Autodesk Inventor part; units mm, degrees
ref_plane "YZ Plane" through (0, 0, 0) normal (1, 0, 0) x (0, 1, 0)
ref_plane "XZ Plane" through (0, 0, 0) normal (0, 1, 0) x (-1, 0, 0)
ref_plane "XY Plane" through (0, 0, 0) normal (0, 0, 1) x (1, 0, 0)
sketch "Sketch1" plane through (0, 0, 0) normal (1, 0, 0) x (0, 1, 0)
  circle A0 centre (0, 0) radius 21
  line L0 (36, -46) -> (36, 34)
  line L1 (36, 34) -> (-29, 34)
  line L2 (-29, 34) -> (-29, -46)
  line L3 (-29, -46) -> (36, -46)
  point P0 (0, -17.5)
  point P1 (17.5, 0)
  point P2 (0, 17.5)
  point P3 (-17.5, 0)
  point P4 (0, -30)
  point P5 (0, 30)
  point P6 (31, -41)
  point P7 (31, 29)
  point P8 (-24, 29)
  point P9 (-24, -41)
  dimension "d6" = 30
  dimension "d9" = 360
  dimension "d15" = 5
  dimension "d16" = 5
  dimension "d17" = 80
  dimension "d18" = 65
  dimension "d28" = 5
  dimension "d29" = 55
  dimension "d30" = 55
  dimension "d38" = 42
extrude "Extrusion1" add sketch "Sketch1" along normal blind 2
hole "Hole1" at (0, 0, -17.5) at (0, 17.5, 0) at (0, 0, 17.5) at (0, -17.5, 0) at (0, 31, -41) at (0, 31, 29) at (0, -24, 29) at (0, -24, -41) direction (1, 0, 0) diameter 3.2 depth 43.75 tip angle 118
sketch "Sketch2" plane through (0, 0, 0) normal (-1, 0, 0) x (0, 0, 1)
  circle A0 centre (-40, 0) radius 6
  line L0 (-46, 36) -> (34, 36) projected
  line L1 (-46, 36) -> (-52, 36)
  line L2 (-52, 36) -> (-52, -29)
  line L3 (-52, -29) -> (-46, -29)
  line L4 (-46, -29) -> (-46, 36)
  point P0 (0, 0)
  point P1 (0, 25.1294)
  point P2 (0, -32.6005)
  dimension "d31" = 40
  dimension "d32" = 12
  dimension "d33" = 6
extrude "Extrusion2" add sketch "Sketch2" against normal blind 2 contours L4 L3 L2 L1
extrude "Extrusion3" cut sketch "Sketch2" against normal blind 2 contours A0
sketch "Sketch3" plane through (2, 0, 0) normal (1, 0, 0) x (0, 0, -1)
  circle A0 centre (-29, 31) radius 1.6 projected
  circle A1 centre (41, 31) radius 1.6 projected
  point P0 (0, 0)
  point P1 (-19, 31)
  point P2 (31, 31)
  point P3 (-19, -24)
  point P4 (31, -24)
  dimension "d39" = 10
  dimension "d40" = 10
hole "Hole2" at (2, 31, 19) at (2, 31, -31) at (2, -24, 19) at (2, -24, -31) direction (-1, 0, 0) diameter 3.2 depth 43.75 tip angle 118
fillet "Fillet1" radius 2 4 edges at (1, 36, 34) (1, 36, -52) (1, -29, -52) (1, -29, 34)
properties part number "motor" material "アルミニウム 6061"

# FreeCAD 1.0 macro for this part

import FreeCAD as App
import Part
import Sketcher
from FreeCAD import Vector


def edges_at(feature, points):
    """Names of the edges that pass closest to the given points."""
    edges = feature.Shape.Edges
    near = lambda p: min(range(len(edges)), key=lambda i: edges[i].distToShape(Part.Vertex(*p))[0])
    return sorted({f"Edge{near(p) + 1}" for p in points})


def add_polygon(sketch, points):
    """Adds a closed chain of lines whose ends are joined by coincident constraints."""
    first, n = sketch.GeometryCount, len(points)
    for a, b in zip(points, points[1:] + points[:1]):
        sketch.addGeometry(Part.LineSegment(App.Vector(*a, 0), App.Vector(*b, 0)), False)
    for i in range(n):
        sketch.addConstraint(Sketcher.Constraint("Coincident", first + i, 2, first + (i + 1) % n, 1))

doc = App.newDocument("Part")
body = doc.addObject("PartDesign::Body", "Body")

sketch1 = body.newObject("Sketcher::SketchObject", "Sketch")
sketch1.AttachmentSupport = (doc.getObject("YZ_Plane"), [""])
sketch1.MapMode = "FlatFace"
add_polygon(sketch1, [(-29, -46), (36, -46), (36, 34), (-29, 34)])
sketch1.addGeometry(Part.Circle(Vector(0, 0, 0), Vector(0, 0, 1), 21), False)
sketch1.addConstraint([
    Sketcher.Constraint("Horizontal", 0),
    Sketcher.Constraint("Vertical", 1),
    Sketcher.Constraint("Horizontal", 2),
    Sketcher.Constraint("Vertical", 3),
    Sketcher.Constraint("Coincident", 4, 3, -1, 1),
    Sketcher.Constraint("Diameter", 4, 42.0),
    Sketcher.Constraint("DistanceX", 0, 1, 0, 2, 65.0),
    Sketcher.Constraint("DistanceY", 1, 1, 1, 2, 80.0),
    Sketcher.Constraint("DistanceX", -1, 1, 0, 2, 36.0),
    Sketcher.Constraint("DistanceY", 0, 2, -1, 1, 46.0),
])
pad1 = body.newObject("PartDesign::Pad", "Pad")
pad1.Profile = sketch1
pad1.Length = 2

sketch2 = body.newObject("Sketcher::SketchObject", "Sketch001")
sketch2.AttachmentSupport = (doc.getObject("YZ_Plane"), [""])
sketch2.MapMode = "FlatFace"
sketch2.addGeometry([
    Part.Circle(Vector(0, -17.5, 0), Vector(0, 0, 1), 1.6),
    Part.Circle(Vector(17.5, 0, 0), Vector(0, 0, 1), 1.6),
    Part.Circle(Vector(0, 17.5, 0), Vector(0, 0, 1), 1.6),
    Part.Circle(Vector(-17.5, 0, 0), Vector(0, 0, 1), 1.6),
    Part.Circle(Vector(31, -41, 0), Vector(0, 0, 1), 1.6),
    Part.Circle(Vector(31, 29, 0), Vector(0, 0, 1), 1.6),
    Part.Circle(Vector(-24, 29, 0), Vector(0, 0, 1), 1.6),
    Part.Circle(Vector(-24, -41, 0), Vector(0, 0, 1), 1.6),
], False)
sketch2.addConstraint([
    Sketcher.Constraint("Equal", 0, 1),
    Sketcher.Constraint("Equal", 1, 2),
    Sketcher.Constraint("Equal", 2, 3),
    Sketcher.Constraint("Equal", 3, 4),
    Sketcher.Constraint("Equal", 4, 5),
    Sketcher.Constraint("Equal", 5, 6),
    Sketcher.Constraint("Equal", 6, 7),
    Sketcher.Constraint("Symmetric", 0, 3, 2, 3, -1, 1),
    Sketcher.Constraint("Symmetric", 1, 3, 3, 3, -1, 1),
    Sketcher.Constraint("PointOnObject", 0, 3, -2),
    Sketcher.Constraint("PointOnObject", 1, 3, -1),
    Sketcher.Constraint("Horizontal", 5, 3, 6, 3),
    Sketcher.Constraint("Horizontal", 4, 3, 7, 3),
    Sketcher.Constraint("Vertical", 4, 3, 5, 3),
    Sketcher.Constraint("Vertical", 6, 3, 7, 3),
    Sketcher.Constraint("Diameter", 0, 3.2),
    Sketcher.Constraint("DistanceX", -1, 1, 4, 3, 31.0),
    Sketcher.Constraint("DistanceY", 4, 3, -1, 1, 41.0),
    Sketcher.Constraint("DistanceY", -1, 1, 5, 3, 29.0),
    Sketcher.Constraint("DistanceX", 6, 3, -1, 1, 24.0),
    Sketcher.Constraint("DistanceY", 0, 3, 2, 3, 35.0),
    Sketcher.Constraint("DistanceX", 3, 3, 1, 3, 35.0),
])
doc.recompute()
hole = body.newObject("PartDesign::Hole", "Hole")
hole.Profile = sketch2
hole.ThreadType = "None"
hole.Diameter = 3.2
hole.DepthType = "Dimension"
hole.Depth = 43.75
hole.DrillPoint = "Angled"
hole.DrillPointAngle = 118
hole.Reversed = True

sketch3 = body.newObject("Sketcher::SketchObject", "Sketch002")
sketch3.AttachmentSupport = (doc.getObject("YZ_Plane"), [""])
sketch3.MapMode = "FlatFace"
add_polygon(sketch3, [(-29, -46), (36, -46), (36, -52), (-29, -52)])
sketch3.addConstraint([
    Sketcher.Constraint("Horizontal", 0),
    Sketcher.Constraint("Vertical", 1),
    Sketcher.Constraint("Horizontal", 2),
    Sketcher.Constraint("Vertical", 3),
    Sketcher.Constraint("DistanceY", 1, 2, 1, 1, 6.0),
    Sketcher.Constraint("DistanceX", 0, 1, 0, 2, 65.0),
    Sketcher.Constraint("DistanceX", -1, 1, 0, 2, 36.0),
    Sketcher.Constraint("DistanceY", 0, 2, -1, 1, 46.0),
])
pad2 = body.newObject("PartDesign::Pad", "Pad001")
pad2.Profile = sketch3
pad2.Length = 2

sketch4 = body.newObject("Sketcher::SketchObject", "Sketch003")
sketch4.AttachmentSupport = (doc.getObject("YZ_Plane"), [""])
sketch4.MapMode = "FlatFace"
sketch4.addGeometry(Part.Circle(Vector(0, -40, 0), Vector(0, 0, 1), 6), False)
sketch4.addConstraint([
    Sketcher.Constraint("PointOnObject", 0, 3, -2),
    Sketcher.Constraint("Diameter", 0, 12.0),
    Sketcher.Constraint("DistanceY", 0, 3, -1, 1, 40.0),
])
pocket1 = body.newObject("PartDesign::Pocket", "Pocket")
pocket1.Profile = sketch4
pocket1.Length = 2
pocket1.Reversed = True

sketch5 = body.newObject("Sketcher::SketchObject", "Sketch004")
sketch5.AttachmentSupport = (doc.getObject("YZ_Plane"), [""])
sketch5.MapMode = "FlatFace"
sketch5.AttachmentOffset = App.Placement(Vector(0, 0, 2), App.Rotation())
sketch5.addGeometry([
    Part.Circle(Vector(31, 19, 0), Vector(0, 0, 1), 1.6),
    Part.Circle(Vector(31, -31, 0), Vector(0, 0, 1), 1.6),
    Part.Circle(Vector(-24, 19, 0), Vector(0, 0, 1), 1.6),
    Part.Circle(Vector(-24, -31, 0), Vector(0, 0, 1), 1.6),
], False)
sketch5.addConstraint([
    Sketcher.Constraint("Equal", 0, 1),
    Sketcher.Constraint("Equal", 1, 2),
    Sketcher.Constraint("Equal", 2, 3),
    Sketcher.Constraint("Horizontal", 0, 3, 2, 3),
    Sketcher.Constraint("Horizontal", 1, 3, 3, 3),
    Sketcher.Constraint("Vertical", 0, 3, 1, 3),
    Sketcher.Constraint("Vertical", 2, 3, 3, 3),
    Sketcher.Constraint("Diameter", 0, 3.2),
    Sketcher.Constraint("DistanceX", -1, 1, 0, 3, 31.0),
    Sketcher.Constraint("DistanceY", -1, 1, 0, 3, 19.0),
    Sketcher.Constraint("DistanceY", 1, 3, -1, 1, 31.0),
    Sketcher.Constraint("DistanceX", 2, 3, -1, 1, 24.0),
])
doc.recompute()
hole2 = body.newObject("PartDesign::Hole", "Hole001")
hole2.Profile = sketch5
hole2.ThreadType = "None"
hole2.Diameter = 3.2
hole2.DepthType = "Dimension"
hole2.Depth = 43.75
hole2.DrillPoint = "Angled"
hole2.DrillPointAngle = 118
doc.recompute()

fillet = body.newObject("PartDesign::Fillet", "Fillet")
fillet.Base = (hole2, edges_at(hole2, [
    (1, 36, 34),
    (1, 36, -52),
    (1, -29, -52),
    (1, -29, 34),
]))
fillet.Radius = 2

doc.recompute()
